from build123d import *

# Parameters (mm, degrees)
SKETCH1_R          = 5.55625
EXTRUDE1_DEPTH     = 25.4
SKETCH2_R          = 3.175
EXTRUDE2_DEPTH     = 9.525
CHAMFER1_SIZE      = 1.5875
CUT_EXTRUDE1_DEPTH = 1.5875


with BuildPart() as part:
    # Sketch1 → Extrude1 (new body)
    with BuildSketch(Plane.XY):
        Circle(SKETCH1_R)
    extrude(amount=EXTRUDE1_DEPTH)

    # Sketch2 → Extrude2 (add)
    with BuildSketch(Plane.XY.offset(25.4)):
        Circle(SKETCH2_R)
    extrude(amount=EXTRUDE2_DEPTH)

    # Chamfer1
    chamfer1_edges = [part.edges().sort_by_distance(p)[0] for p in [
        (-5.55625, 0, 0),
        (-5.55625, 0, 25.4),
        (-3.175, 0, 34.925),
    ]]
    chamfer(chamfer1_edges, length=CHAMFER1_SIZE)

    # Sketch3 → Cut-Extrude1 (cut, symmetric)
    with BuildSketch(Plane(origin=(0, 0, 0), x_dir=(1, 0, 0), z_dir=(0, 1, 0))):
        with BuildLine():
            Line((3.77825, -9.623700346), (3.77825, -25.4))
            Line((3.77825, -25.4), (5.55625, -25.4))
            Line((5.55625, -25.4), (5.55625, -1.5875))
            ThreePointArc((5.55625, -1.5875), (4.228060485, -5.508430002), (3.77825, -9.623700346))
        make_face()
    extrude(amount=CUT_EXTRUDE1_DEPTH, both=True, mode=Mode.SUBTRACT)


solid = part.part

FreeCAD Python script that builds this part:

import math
import FreeCAD as App
import Part
import Sketcher

V = App.Vector
Q = App.Units.Quantity


def edges_at(feature, points):
    """Names of the edges that pass closest to the given points."""
    edges = feature.Shape.Edges
    near = lambda p: min(range(len(edges)), key=lambda i: edges[i].distToShape(Part.Vertex(*p))[0])
    return sorted({f"Edge{near(p) + 1}" for p in points})

doc = App.newDocument("Part")
body = doc.addObject("PartDesign::Body", "Body")

# Sketch on XY plane
sketch1 = body.newObject("Sketcher::SketchObject", "Sketch")
sketch1.AttachmentSupport = (doc.getObject("XY_Plane"), [""])
sketch1.MapMode = "FlatFace"
sketch1.addGeometry(Part.Circle(V(0, 0, 0), V(0, 0, 1), 5.55625), False)
sketch1.addConstraint([
    Sketcher.Constraint("Coincident", 0, 3, -1, 1),
    Sketcher.Constraint("Diameter", 0, Q("0.4375 in")),
])
pad1 = body.newObject("PartDesign::Pad", "Pad")
pad1.Profile = sketch1
pad1.Length = Q("1 in")

# Sketch on XY plane
sketch2 = body.newObject("Sketcher::SketchObject", "Sketch001")
sketch2.AttachmentSupport = (doc.getObject("XY_Plane"), [""])
sketch2.MapMode = "FlatFace"
sketch2.AttachmentOffset = App.Placement(V(0, 0, 1 * 25.4), App.Rotation())
sketch2.addGeometry(Part.Circle(V(0, 0, 0), V(0, 0, 1), 3.175), False)
sketch2.addConstraint([
    Sketcher.Constraint("Coincident", 0, 3, -1, 1),
    Sketcher.Constraint("Diameter", 0, Q("0.25 in")),
])
pad2 = body.newObject("PartDesign::Pad", "Pad001")
pad2.Profile = sketch2
pad2.Length = Q("0.375 in")
doc.recompute()

chamfer = body.newObject("PartDesign::Chamfer", "Chamfer")
chamfer.Base = (pad2, edges_at(pad2, [(-5.556, 0, 0), (-5.556, 0, 25.4), (-3.175, 0, 34.925)]))
chamfer.Size = Q("0.0625 in")

# Sketch on XZ plane
sketch3 = body.newObject("Sketcher::SketchObject", "Sketch002")
sketch3.AttachmentSupport = (doc.getObject("XZ_Plane"), [""])
sketch3.MapMode = "FlatFace"
sketch3.addGeometry([
    Part.LineSegment(V(3.77825, 9.6237, 0), V(3.77825, 25.4, 0)),
    Part.LineSegment(V(3.77825, 25.4, 0), V(5.55625, 25.4, 0)),
    Part.LineSegment(V(5.55625, 25.4, 0), V(5.55625, 1.5875, 0)),
    Part.ArcOfCircle(Part.Circle(V(22.82825, 9.6237, 0), V(0, 0, 1), 19.05), math.radians(-180), math.radians(-155.048699)),
], False)
sketch3.addConstraint([
    Sketcher.Constraint("Coincident", 0, 2, 1, 1),
    Sketcher.Constraint("Coincident", 1, 2, 2, 1),
    Sketcher.Constraint("Coincident", 2, 2, 3, 2),
    Sketcher.Constraint("Tangent", 3, 1, 0, 1),
    Sketcher.Constraint("Vertical", 0),
    Sketcher.Constraint("Horizontal", 1),
    Sketcher.Constraint("Vertical", 2),
    Sketcher.Constraint("Radius", 3, Q("0.75 in")),
    Sketcher.Constraint("DistanceY", -1, 1, 0, 2, Q("1 in")),
    Sketcher.Constraint("DistanceX", 1, 1, 1, 2, Q("0.07 in")),
    Sketcher.Constraint("DistanceY", 2, 2, 2, 1, Q("0.9375 in")),
    Sketcher.Constraint("DistanceX", -1, 1, 1, 2, Q("0.21875 in")),
])
pocket1 = body.newObject("PartDesign::Pocket", "Pocket")
pocket1.Profile = sketch3
pocket1.Length = Q("0.125 in")
pocket1.Midplane = True

doc.recompute()
